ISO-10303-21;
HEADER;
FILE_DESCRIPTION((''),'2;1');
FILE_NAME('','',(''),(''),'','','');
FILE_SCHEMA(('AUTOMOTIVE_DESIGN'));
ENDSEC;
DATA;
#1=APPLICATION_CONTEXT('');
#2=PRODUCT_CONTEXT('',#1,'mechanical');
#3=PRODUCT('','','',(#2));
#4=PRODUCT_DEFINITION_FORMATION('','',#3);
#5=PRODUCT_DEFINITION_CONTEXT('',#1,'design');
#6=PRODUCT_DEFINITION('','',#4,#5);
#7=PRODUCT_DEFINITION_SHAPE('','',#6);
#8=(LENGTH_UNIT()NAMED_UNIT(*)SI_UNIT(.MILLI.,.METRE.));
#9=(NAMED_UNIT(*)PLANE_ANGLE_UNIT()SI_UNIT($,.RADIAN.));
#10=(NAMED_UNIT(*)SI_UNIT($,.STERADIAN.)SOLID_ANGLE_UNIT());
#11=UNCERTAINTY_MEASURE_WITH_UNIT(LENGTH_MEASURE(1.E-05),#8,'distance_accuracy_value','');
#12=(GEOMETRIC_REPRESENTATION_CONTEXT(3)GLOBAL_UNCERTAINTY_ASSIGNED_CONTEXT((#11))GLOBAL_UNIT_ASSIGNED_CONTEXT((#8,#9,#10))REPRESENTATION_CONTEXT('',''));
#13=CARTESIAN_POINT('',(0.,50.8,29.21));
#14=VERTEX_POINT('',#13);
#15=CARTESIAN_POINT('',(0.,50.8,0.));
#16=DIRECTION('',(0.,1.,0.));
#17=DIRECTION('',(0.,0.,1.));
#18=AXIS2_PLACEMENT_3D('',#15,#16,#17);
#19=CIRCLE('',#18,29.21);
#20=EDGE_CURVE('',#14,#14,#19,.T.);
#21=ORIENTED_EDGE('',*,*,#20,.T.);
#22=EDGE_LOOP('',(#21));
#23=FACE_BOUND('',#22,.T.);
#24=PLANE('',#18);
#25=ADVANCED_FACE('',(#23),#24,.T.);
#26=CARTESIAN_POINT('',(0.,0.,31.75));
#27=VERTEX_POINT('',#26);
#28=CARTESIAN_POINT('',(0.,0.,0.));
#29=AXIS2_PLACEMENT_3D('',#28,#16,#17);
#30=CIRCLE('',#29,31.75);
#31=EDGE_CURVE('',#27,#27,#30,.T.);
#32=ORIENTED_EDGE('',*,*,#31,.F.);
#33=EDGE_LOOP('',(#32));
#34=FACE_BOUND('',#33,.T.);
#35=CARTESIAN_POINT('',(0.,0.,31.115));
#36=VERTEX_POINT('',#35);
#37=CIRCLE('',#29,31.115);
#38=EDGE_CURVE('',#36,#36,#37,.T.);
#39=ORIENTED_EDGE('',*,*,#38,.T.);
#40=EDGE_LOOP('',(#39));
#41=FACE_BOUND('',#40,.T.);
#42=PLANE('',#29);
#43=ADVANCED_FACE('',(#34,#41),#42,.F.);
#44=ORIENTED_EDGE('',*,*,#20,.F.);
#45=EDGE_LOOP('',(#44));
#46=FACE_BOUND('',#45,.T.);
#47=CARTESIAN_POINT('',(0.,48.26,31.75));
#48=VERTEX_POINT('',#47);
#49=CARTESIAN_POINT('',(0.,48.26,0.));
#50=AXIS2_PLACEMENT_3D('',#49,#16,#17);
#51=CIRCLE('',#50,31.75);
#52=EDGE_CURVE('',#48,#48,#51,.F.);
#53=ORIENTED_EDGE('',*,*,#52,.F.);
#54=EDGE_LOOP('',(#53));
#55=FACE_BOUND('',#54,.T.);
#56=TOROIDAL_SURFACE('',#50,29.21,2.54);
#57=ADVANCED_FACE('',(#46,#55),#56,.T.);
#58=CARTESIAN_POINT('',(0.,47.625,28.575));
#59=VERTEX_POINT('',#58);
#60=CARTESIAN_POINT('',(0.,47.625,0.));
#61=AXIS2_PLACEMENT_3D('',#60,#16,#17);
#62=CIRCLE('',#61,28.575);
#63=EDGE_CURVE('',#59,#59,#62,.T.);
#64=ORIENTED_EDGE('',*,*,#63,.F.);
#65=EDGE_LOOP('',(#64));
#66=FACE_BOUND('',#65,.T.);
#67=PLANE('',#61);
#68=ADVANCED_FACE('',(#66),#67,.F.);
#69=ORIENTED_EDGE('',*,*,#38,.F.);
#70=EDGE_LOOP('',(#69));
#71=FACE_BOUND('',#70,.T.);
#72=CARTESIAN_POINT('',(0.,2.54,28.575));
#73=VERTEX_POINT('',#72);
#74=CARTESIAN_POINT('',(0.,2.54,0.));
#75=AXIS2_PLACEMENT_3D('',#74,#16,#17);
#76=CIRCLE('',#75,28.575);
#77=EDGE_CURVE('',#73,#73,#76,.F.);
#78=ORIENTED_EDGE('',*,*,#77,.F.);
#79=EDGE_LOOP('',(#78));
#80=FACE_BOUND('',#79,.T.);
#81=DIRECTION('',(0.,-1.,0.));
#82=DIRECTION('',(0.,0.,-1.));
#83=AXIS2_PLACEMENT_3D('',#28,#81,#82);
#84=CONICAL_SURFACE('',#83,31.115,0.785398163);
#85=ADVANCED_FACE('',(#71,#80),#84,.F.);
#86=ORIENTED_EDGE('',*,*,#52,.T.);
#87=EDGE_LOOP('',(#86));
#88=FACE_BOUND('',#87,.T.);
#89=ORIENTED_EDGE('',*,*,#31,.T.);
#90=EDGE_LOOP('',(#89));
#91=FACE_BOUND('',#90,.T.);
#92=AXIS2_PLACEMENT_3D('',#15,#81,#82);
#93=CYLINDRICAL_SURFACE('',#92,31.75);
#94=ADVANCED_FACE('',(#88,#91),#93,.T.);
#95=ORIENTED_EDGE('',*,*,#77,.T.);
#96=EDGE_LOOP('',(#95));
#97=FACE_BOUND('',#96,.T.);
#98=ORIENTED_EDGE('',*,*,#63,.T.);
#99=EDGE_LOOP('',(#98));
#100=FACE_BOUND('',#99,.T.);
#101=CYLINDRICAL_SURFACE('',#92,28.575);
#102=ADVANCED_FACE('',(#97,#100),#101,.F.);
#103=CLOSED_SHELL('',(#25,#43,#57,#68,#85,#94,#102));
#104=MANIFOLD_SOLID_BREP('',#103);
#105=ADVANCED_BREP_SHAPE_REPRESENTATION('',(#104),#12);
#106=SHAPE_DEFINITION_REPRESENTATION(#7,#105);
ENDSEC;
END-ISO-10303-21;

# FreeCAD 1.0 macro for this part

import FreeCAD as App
import Part
import Sketcher
Q = App.Units.Quantity


def edges_at(feature, points):
    """Names of the edges that pass closest to the given points."""
    edges = feature.Shape.Edges
    near = lambda p: min(range(len(edges)), key=lambda i: edges[i].distToShape(Part.Vertex(*p))[0])
    return sorted({f"Edge{near(p) + 1}" for p in points})


def faces_at(feature, points):
    """Names of the faces that lie closest to the given points."""
    faces = feature.Shape.Faces
    near = lambda p: min(range(len(faces)), key=lambda i: faces[i].distToShape(Part.Vertex(*p))[0])
    return sorted({f"Face{near(p) + 1}" for p in points})

doc = App.newDocument("Part")
body = doc.addObject("PartDesign::Body", "Body")

# Sketch on XZ plane
sketch1 = doc.addObject("Sketcher::SketchObject", "Sketch")
body.addObject(sketch1)
sketch1.AttachmentSupport = (doc.XZ_Plane, [""])
sketch1.MapMode = "FlatFace"
sketch1.addGeometry(Part.Circle(App.Vector(0, 0, 0), App.Vector(0, 0, 1), 31.75), False)
sketch1.addConstraint([
    Sketcher.Constraint("Coincident", 0, 3, -1, 1),
    Sketcher.Constraint("Diameter", 0, Q("2.5 in")),
])
pad1 = doc.addObject("PartDesign::Pad", "Pad")
body.addObject(pad1)
pad1.Profile = sketch1
pad1.Length = Q("2 in")
pad1.Reversed = True
doc.recompute()

thickness = doc.addObject("PartDesign::Thickness", "Thickness")
body.addObject(thickness)
thickness.Base = (pad1, faces_at(pad1, [(0, 0, 0)]))
thickness.Value = Q("0.125 in")
thickness.Reversed = True
thickness.Join = "Intersection"
doc.recompute()

fillet = doc.addObject("PartDesign::Fillet", "Fillet")
body.addObject(fillet)
fillet.Base = (thickness, edges_at(thickness, [(0, 50.8, -31.75)]))
fillet.Radius = Q("0.1 in")
doc.recompute()

chamfer = doc.addObject("PartDesign::Chamfer", "Chamfer")
body.addObject(chamfer)
chamfer.Base = (fillet, edges_at(fillet, [(0, 0, -28.575)]))
chamfer.Size = Q("0.1 in")

doc.recompute()
